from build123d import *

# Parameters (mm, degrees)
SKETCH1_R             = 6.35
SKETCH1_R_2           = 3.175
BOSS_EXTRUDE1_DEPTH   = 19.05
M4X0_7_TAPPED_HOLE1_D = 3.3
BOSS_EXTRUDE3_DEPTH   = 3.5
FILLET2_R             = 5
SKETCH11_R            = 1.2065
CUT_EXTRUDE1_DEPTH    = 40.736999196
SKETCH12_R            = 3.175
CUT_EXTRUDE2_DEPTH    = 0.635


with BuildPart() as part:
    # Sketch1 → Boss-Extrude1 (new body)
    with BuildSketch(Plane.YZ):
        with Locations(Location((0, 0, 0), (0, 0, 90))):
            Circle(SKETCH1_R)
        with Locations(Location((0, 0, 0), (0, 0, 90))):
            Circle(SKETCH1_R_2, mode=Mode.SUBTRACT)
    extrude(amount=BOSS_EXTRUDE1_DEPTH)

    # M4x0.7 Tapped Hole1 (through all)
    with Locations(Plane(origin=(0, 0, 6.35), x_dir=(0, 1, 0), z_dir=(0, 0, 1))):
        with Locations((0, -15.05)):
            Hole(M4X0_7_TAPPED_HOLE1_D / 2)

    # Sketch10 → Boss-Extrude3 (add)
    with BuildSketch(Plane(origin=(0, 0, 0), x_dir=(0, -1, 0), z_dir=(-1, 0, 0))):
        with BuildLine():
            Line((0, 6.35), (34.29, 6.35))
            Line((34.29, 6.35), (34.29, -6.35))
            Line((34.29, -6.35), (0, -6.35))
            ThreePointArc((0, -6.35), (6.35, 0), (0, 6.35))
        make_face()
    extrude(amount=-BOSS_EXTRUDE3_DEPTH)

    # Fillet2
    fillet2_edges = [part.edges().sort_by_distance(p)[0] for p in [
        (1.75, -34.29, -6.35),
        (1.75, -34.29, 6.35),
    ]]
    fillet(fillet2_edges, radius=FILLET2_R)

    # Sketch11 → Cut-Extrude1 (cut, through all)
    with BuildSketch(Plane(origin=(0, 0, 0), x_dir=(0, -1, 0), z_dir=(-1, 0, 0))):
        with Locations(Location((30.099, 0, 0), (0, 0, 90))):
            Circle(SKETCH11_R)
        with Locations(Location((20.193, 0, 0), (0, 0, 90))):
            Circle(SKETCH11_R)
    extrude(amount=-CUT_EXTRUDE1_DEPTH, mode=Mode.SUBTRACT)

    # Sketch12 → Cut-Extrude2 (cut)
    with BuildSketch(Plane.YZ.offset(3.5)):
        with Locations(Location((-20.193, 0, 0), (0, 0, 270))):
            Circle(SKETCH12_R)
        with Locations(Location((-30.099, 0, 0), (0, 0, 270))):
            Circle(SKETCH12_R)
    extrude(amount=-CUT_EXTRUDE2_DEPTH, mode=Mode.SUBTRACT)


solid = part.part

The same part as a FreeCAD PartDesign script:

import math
import FreeCAD as App
import Part
import Sketcher

V = App.Vector
Q = App.Units.Quantity


def edges_at(feature, points):
    """Names of the edges that pass closest to the given points."""
    edges = feature.Shape.Edges
    near = lambda p: min(range(len(edges)), key=lambda i: edges[i].distToShape(Part.Vertex(*p))[0])
    return sorted({f"Edge{near(p) + 1}" for p in points})

doc = App.newDocument("Part")
body = doc.addObject("PartDesign::Body", "Body")

# Sketch on YZ plane
sketch1 = body.newObject("Sketcher::SketchObject", "Sketch")
sketch1.AttachmentSupport = (doc.getObject("YZ_Plane"), [""])
sketch1.MapMode = "FlatFace"
sketch1.addGeometry([
    Part.Circle(V(0, 0, 0), V(0, 0, 1), 6.35),
    Part.Circle(V(0, 0, 0), V(0, 0, 1), 3.175),
], False)
sketch1.addConstraint([
    Sketcher.Constraint("Coincident", 0, 3, -1, 1),
    Sketcher.Constraint("Coincident", 1, 3, -1, 1),
    Sketcher.Constraint("Diameter", 0, Q("0.5 in")),
    Sketcher.Constraint("Diameter", 1, Q("0.25 in")),
])
pad1 = body.newObject("PartDesign::Pad", "Pad")
pad1.Profile = sketch1
pad1.Length = Q("0.75 in")

# Sketch on XY plane
sketch2 = body.newObject("Sketcher::SketchObject", "Sketch001")
sketch2.AttachmentSupport = (doc.getObject("XY_Plane"), [""])
sketch2.MapMode = "FlatFace"
sketch2.AttachmentOffset = App.Placement(V(0, 0, 0.25 * 25.4), App.Rotation())
sketch2.addGeometry(Part.Circle(V(15.05, 0, 0), V(0, 0, 1), 1.65), False)
sketch2.addConstraint([
    Sketcher.Constraint("PointOnObject", 0, 3, -1),
    Sketcher.Constraint("Diameter", 0, 3.3),
    Sketcher.Constraint("DistanceX", -1, 1, 0, 3, 15.05),
])
doc.recompute()
hole = body.newObject("PartDesign::Hole", "Hole")
hole.Profile = sketch2
hole.ThreadType = "None"
hole.Diameter = 3.3
hole.DepthType = "ThroughAll"

# Sketch on YZ plane
sketch3 = body.newObject("Sketcher::SketchObject", "Sketch002")
sketch3.AttachmentSupport = (doc.getObject("YZ_Plane"), [""])
sketch3.MapMode = "FlatFace"
sketch3.addGeometry([
    Part.LineSegment(V(-34.29, 6.35, 0), V(0, 6.35, 0)),
    Part.ArcOfCircle(Part.Circle(V(0, 0, 0), V(0, 0, 1), 6.35), math.radians(90), math.radians(270)),
    Part.LineSegment(V(0, -6.35, 0), V(-34.29, -6.35, 0)),
    Part.LineSegment(V(-34.29, -6.35, 0), V(-34.29, 6.35, 0)),
], False)
sketch3.addConstraint([
    Sketcher.Constraint("Tangent", 0, 2, 1, 1),
    Sketcher.Constraint("Tangent", 1, 2, 2, 1),
    Sketcher.Constraint("Coincident", 2, 2, 3, 1),
    Sketcher.Constraint("Coincident", 3, 2, 0, 1),
    Sketcher.Constraint("Horizontal", 0),
    Sketcher.Constraint("Horizontal", 2),
    Sketcher.Constraint("Vertical", 3),
    Sketcher.Constraint("Coincident", 1, 3, -1, 1),
    Sketcher.Constraint("Radius", 1, Q("0.25 in")),
    Sketcher.Constraint("DistanceX", 0, 1, 0, 2, Q("1.35 in")),
])
pad2 = body.newObject("PartDesign::Pad", "Pad001")
pad2.Profile = sketch3
pad2.Length = 3.5
doc.recompute()

fillet = body.newObject("PartDesign::Fillet", "Fillet")
fillet.Base = (pad2, edges_at(pad2, [(1.75, -34.29, -6.35), (1.75, -34.29, 6.35)]))
fillet.Radius = 5

# Sketch on YZ plane
sketch4 = body.newObject("Sketcher::SketchObject", "Sketch003")
sketch4.AttachmentSupport = (doc.getObject("YZ_Plane"), [""])
sketch4.MapMode = "FlatFace"
sketch4.addGeometry([
    Part.Circle(V(-30.099, 0, 0), V(0, 0, 1), 1.2065),
    Part.Circle(V(-20.193, 0, 0), V(0, 0, 1), 1.2065),
], False)
sketch4.addConstraint([
    Sketcher.Constraint("Equal", 0, 1),
    Sketcher.Constraint("PointOnObject", 0, 3, -1),
    Sketcher.Constraint("PointOnObject", 1, 3, -1),
    Sketcher.Constraint("Diameter", 0, Q("0.095 in")),
    Sketcher.Constraint("DistanceX", 0, 3, 1, 3, Q("0.39 in")),
    Sketcher.Constraint("DistanceX", 0, 3, -1, 1, Q("1.185 in")),
])
pocket1 = body.newObject("PartDesign::Pocket", "Pocket")
pocket1.Profile = sketch4
pocket1.Type = "ThroughAll"
pocket1.Reversed = True

# Sketch on YZ plane
sketch5 = body.newObject("Sketcher::SketchObject", "Sketch004")
sketch5.AttachmentSupport = (doc.getObject("YZ_Plane"), [""])
sketch5.MapMode = "FlatFace"
sketch5.AttachmentOffset = App.Placement(V(0, 0, 3.5), App.Rotation())
sketch5.addGeometry([
    Part.Circle(V(-20.193, 0, 0), V(0, 0, 1), 3.175),
    Part.Circle(V(-30.099, 0, 0), V(0, 0, 1), 3.175),
], False)
sketch5.addConstraint([
    Sketcher.Constraint("Equal", 0, 1),
    Sketcher.Constraint("PointOnObject", 0, 3, -1),
    Sketcher.Constraint("PointOnObject", 1, 3, -1),
    Sketcher.Constraint("Diameter", 0, Q("0.25 in")),
    Sketcher.Constraint("DistanceX", 1, 3, 0, 3, Q("0.39 in")),
    Sketcher.Constraint("DistanceX", 0, 3, -1, 1, Q("0.795 in")),
])
pocket2 = body.newObject("PartDesign::Pocket", "Pocket001")
pocket2.Profile = sketch5
pocket2.Length = Q("0.025 in")

doc.recompute()
